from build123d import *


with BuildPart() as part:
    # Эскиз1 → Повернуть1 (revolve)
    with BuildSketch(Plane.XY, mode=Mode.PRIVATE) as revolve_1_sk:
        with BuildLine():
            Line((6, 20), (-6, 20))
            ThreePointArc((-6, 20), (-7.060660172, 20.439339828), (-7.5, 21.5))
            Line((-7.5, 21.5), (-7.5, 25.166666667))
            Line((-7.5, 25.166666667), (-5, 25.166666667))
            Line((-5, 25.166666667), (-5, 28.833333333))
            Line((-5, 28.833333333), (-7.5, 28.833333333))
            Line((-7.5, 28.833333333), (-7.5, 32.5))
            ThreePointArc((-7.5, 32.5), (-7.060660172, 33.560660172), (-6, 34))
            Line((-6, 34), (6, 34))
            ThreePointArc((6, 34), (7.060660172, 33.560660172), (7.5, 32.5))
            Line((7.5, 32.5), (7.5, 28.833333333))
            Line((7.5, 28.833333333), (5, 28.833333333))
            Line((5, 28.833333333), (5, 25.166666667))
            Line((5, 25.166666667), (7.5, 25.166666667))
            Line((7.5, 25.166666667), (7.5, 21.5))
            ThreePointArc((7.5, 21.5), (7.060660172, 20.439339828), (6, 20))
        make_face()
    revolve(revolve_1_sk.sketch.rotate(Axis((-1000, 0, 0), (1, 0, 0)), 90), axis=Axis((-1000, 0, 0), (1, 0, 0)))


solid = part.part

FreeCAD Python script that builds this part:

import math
import FreeCAD as App
import Part
import Sketcher
Q = App.Units.Quantity

doc = App.newDocument("Part")
body = doc.addObject("PartDesign::Body", "Body")

sketch1 = body.newObject("Sketcher::SketchObject", "Sketch")
sketch1.AttachmentSupport = (doc.getObject("XY_Plane"), [""])
sketch1.MapMode = "FlatFace"
sketch1.addGeometry([
    Part.LineSegment(App.Vector(-6, 20, 0), App.Vector(6, 20, 0)),
    Part.ArcOfCircle(Part.Circle(App.Vector(6, 21.5, 0), App.Vector(0, 0, 1), 1.5), math.radians(-90), math.radians(0)),
    Part.LineSegment(App.Vector(7.5, 21.5, 0), App.Vector(7.5, 25.166667, 0)),
    Part.LineSegment(App.Vector(7.5, 25.166667, 0), App.Vector(5, 25.166667, 0)),
    Part.LineSegment(App.Vector(5, 25.166667, 0), App.Vector(5, 28.833333, 0)),
    Part.LineSegment(App.Vector(5, 28.833333, 0), App.Vector(7.5, 28.833333, 0)),
    Part.LineSegment(App.Vector(7.5, 28.833333, 0), App.Vector(7.5, 32.5, 0)),
    Part.ArcOfCircle(Part.Circle(App.Vector(6, 32.5, 0), App.Vector(0, 0, 1), 1.5), math.radians(0), math.radians(90)),
    Part.LineSegment(App.Vector(6, 34, 0), App.Vector(-6, 34, 0)),
    Part.ArcOfCircle(Part.Circle(App.Vector(-6, 32.5, 0), App.Vector(0, 0, 1), 1.5), math.radians(90), math.radians(180)),
    Part.LineSegment(App.Vector(-7.5, 32.5, 0), App.Vector(-7.5, 28.833333, 0)),
    Part.LineSegment(App.Vector(-7.5, 28.833333, 0), App.Vector(-5, 28.833333, 0)),
    Part.LineSegment(App.Vector(-5, 28.833333, 0), App.Vector(-5, 25.166667, 0)),
    Part.LineSegment(App.Vector(-5, 25.166667, 0), App.Vector(-7.5, 25.166667, 0)),
    Part.LineSegment(App.Vector(-7.5, 25.166667, 0), App.Vector(-7.5, 21.5, 0)),
    Part.ArcOfCircle(Part.Circle(App.Vector(-6, 21.5, 0), App.Vector(0, 0, 1), 1.5), math.radians(180), math.radians(270)),
], False)
sketch1.addConstraint([
    Sketcher.Constraint("Tangent", 0, 2, 1, 1),
    Sketcher.Constraint("Tangent", 1, 2, 2, 1),
    Sketcher.Constraint("Coincident", 2, 2, 3, 1),
    Sketcher.Constraint("Coincident", 3, 2, 4, 1),
    Sketcher.Constraint("Coincident", 4, 2, 5, 1),
    Sketcher.Constraint("Coincident", 5, 2, 6, 1),
    Sketcher.Constraint("Tangent", 6, 2, 7, 1),
    Sketcher.Constraint("Tangent", 7, 2, 8, 1),
    Sketcher.Constraint("Tangent", 8, 2, 9, 1),
    Sketcher.Constraint("Tangent", 9, 2, 10, 1),
    Sketcher.Constraint("Coincident", 10, 2, 11, 1),
    Sketcher.Constraint("Coincident", 11, 2, 12, 1),
    Sketcher.Constraint("Coincident", 12, 2, 13, 1),
    Sketcher.Constraint("Coincident", 13, 2, 14, 1),
    Sketcher.Constraint("Tangent", 14, 2, 15, 1),
    Sketcher.Constraint("Tangent", 15, 2, 0, 1),
    Sketcher.Constraint("Horizontal", 0),
    Sketcher.Constraint("Vertical", 2),
    Sketcher.Constraint("Horizontal", 3),
    Sketcher.Constraint("Vertical", 4),
    Sketcher.Constraint("Horizontal", 5),
    Sketcher.Constraint("Vertical", 6),
    Sketcher.Constraint("Horizontal", 8),
    Sketcher.Constraint("Vertical", 10),
    Sketcher.Constraint("Horizontal", 11),
    Sketcher.Constraint("Vertical", 12),
    Sketcher.Constraint("Horizontal", 13),
    Sketcher.Constraint("Vertical", 14),
    Sketcher.Constraint("Equal", 1, 7),
    Sketcher.Constraint("Equal", 7, 9),
    Sketcher.Constraint("Equal", 9, 15),
    Sketcher.Constraint("Symmetric", 5, 2, 10, 2, -2),
    Sketcher.Constraint("Symmetric", 3, 2, 12, 2, -2),
    Sketcher.Constraint("Vertical", 1, 3, 7, 3),
    Sketcher.Constraint("Vertical", 9, 3, 15, 3),
    Sketcher.Constraint("Equal", 2, 4),
    Sketcher.Constraint("Equal", 4, 6),
    Sketcher.Constraint("Radius", 1, Q("1.5 mm")),
    Sketcher.Constraint("DistanceX", 0, 1, 0, 2, Q("12 mm")),
    Sketcher.Constraint("DistanceX", 3, 2, 3, 1, Q("2.5 mm")),
    Sketcher.Constraint("DistanceY", -1, 1, 0, 2, Q("20 mm")),
    Sketcher.Constraint("DistanceY", -1, 1, 7, 2, Q("34 mm")),
])
revolution = body.newObject("PartDesign::Revolution", "Revolution")
revolution.Profile = sketch1
revolution.ReferenceAxis = (sketch1, ["H_Axis"])
revolution.Angle = 360

doc.recompute()
